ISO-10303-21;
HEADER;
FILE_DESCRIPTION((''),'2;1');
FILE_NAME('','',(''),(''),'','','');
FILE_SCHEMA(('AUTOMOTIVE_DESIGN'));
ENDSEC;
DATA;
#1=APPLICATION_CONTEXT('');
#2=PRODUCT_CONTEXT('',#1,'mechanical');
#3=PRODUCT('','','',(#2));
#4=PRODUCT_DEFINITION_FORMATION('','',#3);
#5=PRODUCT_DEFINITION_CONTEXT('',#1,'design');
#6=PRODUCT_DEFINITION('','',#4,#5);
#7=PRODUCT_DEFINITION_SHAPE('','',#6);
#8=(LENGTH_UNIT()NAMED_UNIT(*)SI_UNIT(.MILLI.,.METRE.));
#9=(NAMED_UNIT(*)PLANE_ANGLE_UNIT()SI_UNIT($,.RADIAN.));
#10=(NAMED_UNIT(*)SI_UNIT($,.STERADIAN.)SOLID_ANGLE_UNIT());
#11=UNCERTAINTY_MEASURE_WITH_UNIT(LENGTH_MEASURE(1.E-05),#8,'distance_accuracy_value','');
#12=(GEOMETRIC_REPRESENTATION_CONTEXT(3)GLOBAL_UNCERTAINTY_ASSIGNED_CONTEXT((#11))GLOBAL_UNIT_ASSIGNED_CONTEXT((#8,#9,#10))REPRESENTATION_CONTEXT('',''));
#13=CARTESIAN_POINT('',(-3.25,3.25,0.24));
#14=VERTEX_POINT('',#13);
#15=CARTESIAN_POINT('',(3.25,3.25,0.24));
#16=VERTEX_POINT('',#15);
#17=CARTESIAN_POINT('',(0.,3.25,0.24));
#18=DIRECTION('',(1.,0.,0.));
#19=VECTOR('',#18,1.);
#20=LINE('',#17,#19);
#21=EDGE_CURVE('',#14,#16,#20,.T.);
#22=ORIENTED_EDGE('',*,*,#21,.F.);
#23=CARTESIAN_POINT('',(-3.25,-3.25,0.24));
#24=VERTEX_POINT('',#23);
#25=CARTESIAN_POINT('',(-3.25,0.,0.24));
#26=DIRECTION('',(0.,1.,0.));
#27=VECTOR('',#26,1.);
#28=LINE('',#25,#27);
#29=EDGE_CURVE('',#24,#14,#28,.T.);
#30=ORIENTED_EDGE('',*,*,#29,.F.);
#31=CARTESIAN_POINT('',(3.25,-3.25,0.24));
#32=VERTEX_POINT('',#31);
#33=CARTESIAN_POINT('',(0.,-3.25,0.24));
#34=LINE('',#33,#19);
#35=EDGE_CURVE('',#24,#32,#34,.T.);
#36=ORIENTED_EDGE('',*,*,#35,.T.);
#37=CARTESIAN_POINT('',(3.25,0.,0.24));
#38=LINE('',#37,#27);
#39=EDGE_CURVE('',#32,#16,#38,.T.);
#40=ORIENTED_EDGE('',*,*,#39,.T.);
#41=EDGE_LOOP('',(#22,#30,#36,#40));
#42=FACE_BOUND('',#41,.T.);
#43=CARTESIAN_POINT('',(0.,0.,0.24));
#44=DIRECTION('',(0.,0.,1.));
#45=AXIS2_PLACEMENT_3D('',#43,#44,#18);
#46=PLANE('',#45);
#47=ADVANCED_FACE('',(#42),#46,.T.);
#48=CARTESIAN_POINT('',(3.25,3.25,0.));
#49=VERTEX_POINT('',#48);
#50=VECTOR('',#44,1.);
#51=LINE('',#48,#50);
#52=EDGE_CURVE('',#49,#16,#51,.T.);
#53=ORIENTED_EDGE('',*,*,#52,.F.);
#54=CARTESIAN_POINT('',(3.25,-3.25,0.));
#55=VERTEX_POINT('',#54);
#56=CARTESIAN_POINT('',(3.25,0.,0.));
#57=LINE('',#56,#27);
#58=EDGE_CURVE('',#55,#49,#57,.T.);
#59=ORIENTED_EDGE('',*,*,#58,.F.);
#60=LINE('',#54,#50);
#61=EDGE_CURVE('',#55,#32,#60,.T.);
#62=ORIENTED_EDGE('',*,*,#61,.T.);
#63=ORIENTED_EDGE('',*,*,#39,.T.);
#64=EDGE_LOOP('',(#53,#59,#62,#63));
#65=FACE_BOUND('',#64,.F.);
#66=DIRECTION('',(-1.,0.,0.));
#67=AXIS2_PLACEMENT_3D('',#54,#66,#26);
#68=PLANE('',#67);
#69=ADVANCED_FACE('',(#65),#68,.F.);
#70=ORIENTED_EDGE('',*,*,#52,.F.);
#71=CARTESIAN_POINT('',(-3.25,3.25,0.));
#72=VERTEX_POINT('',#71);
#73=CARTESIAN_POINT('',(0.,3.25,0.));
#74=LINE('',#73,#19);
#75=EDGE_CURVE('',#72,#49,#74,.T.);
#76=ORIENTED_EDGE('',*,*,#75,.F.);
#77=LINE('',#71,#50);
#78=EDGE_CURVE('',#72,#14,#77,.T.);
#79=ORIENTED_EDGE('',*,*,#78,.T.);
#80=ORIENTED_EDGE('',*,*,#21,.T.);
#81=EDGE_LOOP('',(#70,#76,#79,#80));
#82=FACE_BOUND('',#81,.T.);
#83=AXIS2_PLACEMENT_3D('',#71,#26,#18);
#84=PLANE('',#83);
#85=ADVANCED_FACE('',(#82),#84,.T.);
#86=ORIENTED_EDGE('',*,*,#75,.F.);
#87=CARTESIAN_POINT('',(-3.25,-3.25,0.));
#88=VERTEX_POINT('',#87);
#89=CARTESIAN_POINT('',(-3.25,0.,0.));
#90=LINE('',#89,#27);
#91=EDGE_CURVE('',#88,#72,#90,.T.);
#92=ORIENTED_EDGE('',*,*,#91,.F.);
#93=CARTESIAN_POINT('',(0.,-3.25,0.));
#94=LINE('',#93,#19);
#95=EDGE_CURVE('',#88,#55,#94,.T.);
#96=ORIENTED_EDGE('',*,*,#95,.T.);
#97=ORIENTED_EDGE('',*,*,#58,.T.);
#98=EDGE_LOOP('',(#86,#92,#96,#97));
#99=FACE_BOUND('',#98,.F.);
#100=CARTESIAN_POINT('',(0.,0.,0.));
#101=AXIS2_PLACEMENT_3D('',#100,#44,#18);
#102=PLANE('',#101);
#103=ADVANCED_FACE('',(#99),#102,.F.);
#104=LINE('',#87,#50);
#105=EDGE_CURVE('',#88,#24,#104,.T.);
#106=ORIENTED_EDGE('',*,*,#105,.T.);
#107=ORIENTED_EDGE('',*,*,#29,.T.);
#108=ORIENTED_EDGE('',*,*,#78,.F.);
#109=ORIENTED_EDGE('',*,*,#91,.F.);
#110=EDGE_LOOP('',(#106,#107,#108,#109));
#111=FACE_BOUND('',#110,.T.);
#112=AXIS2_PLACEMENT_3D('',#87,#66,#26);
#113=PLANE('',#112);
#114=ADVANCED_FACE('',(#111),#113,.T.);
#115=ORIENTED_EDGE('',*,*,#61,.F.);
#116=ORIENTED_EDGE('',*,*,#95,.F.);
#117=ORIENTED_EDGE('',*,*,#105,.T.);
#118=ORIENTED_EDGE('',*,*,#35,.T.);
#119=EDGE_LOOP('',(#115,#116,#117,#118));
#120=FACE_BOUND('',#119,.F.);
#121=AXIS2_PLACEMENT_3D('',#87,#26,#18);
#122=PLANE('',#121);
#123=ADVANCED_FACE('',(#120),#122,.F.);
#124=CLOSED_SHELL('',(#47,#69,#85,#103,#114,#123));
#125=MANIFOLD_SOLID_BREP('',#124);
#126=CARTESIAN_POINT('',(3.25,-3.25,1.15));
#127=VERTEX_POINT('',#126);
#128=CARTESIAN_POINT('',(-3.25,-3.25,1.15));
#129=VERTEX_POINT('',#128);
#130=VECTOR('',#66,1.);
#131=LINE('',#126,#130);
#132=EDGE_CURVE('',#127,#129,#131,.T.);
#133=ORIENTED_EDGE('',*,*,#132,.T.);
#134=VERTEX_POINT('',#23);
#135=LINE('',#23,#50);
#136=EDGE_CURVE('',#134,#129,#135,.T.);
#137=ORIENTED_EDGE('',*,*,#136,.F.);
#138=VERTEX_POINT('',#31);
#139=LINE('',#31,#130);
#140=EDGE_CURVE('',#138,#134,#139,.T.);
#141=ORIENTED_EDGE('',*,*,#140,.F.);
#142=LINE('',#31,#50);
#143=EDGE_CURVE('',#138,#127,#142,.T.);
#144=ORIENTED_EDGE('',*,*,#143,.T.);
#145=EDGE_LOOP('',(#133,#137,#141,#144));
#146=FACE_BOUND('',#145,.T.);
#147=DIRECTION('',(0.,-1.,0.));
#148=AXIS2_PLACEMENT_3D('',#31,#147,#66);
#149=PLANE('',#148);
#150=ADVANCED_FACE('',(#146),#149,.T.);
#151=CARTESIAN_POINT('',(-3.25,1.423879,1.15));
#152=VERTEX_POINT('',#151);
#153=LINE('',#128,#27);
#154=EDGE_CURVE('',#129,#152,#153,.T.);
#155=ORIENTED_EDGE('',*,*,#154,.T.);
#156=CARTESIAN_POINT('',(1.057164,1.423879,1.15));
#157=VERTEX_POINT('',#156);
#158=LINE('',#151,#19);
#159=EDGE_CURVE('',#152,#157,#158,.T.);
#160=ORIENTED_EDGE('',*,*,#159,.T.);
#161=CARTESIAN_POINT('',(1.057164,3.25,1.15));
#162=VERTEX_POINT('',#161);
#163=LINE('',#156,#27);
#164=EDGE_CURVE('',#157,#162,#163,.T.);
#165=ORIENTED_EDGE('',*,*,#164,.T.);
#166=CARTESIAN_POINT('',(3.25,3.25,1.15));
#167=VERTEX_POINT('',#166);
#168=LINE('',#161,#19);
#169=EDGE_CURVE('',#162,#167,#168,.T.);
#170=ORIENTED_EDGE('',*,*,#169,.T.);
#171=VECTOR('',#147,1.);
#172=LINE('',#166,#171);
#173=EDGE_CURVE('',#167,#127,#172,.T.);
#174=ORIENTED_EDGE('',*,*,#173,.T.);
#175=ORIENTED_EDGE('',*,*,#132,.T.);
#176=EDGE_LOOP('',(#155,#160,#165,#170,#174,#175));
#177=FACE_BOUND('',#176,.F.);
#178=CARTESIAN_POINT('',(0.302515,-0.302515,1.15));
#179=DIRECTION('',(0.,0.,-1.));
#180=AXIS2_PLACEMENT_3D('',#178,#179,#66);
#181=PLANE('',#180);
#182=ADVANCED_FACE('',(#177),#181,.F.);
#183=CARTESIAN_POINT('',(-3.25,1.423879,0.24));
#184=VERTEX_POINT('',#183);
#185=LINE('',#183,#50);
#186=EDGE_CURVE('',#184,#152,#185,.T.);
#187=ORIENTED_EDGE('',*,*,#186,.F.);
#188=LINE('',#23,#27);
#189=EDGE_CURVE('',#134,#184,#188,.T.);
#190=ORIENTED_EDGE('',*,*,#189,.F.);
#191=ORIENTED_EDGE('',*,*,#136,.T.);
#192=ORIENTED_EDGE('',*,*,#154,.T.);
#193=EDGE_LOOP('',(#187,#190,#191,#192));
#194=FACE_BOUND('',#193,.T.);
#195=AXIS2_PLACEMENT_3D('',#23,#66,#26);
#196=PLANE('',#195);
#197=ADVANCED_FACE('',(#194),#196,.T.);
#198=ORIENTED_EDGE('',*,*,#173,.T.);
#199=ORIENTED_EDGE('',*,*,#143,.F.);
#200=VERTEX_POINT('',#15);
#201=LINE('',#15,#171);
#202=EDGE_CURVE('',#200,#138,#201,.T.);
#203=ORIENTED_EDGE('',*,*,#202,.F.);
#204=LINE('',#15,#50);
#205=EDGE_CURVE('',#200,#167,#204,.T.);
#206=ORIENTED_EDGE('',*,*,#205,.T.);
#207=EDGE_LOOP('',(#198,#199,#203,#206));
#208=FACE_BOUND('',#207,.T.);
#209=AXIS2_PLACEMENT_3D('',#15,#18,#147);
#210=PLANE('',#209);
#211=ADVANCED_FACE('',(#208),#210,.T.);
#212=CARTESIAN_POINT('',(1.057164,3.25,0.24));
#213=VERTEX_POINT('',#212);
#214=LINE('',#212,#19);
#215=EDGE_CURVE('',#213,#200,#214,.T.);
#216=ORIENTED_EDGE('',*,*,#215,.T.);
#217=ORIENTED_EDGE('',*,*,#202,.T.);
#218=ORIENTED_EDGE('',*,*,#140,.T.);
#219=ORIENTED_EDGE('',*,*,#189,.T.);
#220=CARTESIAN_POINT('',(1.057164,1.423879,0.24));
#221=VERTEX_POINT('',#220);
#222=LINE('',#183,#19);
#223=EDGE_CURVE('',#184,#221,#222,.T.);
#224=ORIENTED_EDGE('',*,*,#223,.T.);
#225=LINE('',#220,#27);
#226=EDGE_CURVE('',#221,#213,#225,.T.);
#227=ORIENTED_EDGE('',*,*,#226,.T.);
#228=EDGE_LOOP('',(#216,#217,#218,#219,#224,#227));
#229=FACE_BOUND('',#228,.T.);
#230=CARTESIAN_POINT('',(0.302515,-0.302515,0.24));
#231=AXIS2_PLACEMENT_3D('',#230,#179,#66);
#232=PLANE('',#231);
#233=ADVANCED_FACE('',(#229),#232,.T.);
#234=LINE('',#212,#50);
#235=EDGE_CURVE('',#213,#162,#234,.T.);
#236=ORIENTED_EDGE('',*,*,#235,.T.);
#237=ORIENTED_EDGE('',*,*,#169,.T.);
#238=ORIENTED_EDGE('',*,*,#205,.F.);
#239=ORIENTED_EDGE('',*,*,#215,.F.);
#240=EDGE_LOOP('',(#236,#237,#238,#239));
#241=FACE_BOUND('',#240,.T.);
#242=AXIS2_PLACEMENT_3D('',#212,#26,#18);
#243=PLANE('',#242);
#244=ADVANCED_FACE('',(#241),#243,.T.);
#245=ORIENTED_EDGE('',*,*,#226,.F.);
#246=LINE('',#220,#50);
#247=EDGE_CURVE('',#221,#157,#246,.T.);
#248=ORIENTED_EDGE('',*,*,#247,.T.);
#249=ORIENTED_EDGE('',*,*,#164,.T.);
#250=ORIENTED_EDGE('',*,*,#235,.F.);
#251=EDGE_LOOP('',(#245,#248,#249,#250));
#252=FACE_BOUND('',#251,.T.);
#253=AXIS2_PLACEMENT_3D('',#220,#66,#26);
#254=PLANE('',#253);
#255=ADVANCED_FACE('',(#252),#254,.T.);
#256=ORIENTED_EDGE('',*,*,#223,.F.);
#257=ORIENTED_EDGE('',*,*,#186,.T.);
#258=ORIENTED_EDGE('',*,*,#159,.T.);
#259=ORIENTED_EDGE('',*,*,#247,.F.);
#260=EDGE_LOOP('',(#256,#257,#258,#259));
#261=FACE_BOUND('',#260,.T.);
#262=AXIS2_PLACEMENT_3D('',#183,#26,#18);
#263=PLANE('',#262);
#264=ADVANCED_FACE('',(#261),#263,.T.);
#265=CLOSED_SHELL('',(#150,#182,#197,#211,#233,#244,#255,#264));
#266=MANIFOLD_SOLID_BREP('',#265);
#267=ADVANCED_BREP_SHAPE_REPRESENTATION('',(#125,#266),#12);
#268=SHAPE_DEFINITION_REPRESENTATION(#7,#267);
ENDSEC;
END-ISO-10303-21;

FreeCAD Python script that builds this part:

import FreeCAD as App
import Part
import Sketcher

V = App.Vector

doc = App.newDocument("Part")
body = doc.addObject("PartDesign::Body", "Body")

# Sketch on XY plane
sketch1 = body.newObject("Sketcher::SketchObject", "Sketch")
sketch1.AttachmentSupport = (doc.getObject("XY_Plane"), [""])
sketch1.MapMode = "FlatFace"
sketch1.addGeometry(Part.LineSegment(V(-3.25, 3.25, 0), V(-3.25, -3.25, 0)), False)
sketch1.addGeometry(Part.LineSegment(V(-3.25, -3.25, 0), V(3.25, -3.25, 0)), False)
sketch1.addGeometry(Part.LineSegment(V(3.25, -3.25, 0), V(3.25, 3.25, 0)), False)
sketch1.addGeometry(Part.LineSegment(V(3.25, 3.25, 0), V(-3.25, 3.25, 0)), False)
sketch1.addConstraint(Sketcher.Constraint("Coincident", 0, 2, 1, 1))
sketch1.addConstraint(Sketcher.Constraint("Coincident", 1, 2, 2, 1))
sketch1.addConstraint(Sketcher.Constraint("Coincident", 2, 2, 3, 1))
sketch1.addConstraint(Sketcher.Constraint("Coincident", 3, 2, 0, 1))
sketch1.addConstraint(Sketcher.Constraint("Vertical", 0))
sketch1.addConstraint(Sketcher.Constraint("Horizontal", 1))
sketch1.addConstraint(Sketcher.Constraint("Vertical", 2))
sketch1.addConstraint(Sketcher.Constraint("Horizontal", 3))
sketch1.addConstraint(Sketcher.Constraint("Symmetric", 0, 2, 2, 2, -1, 1))
sketch1.addConstraint(Sketcher.Constraint("Equal", 3, 0))
sketch1.addConstraint(Sketcher.Constraint("DistanceX", 1, 1, 1, 2, 6.5))
pad1 = body.newObject("PartDesign::Pad", "Pad")
pad1.Profile = sketch1
pad1.Length = 0.24
body2 = doc.addObject("PartDesign::Body", "Body001")

# Sketch on XY plane
sketch2 = body2.newObject("Sketcher::SketchObject", "Sketch001")
sketch2.AttachmentSupport = (doc.getObject("XY_Plane001"), [""])
sketch2.MapMode = "FlatFace"
sketch2.AttachmentOffset = App.Placement(V(0, 0, 0.24), App.Rotation())
sketch2.addGeometry(Part.LineSegment(V(-3.25, 1.423879, 0), V(-3.25, -3.25, 0)), False)
sketch2.addGeometry(Part.LineSegment(V(-3.25, -3.25, 0), V(3.25, -3.25, 0)), False)
sketch2.addGeometry(Part.LineSegment(V(3.25, -3.25, 0), V(3.25, 3.25, 0)), False)
sketch2.addGeometry(Part.LineSegment(V(3.25, 3.25, 0), V(1.057164, 3.25, 0)), False)
sketch2.addGeometry(Part.LineSegment(V(1.057164, 3.25, 0), V(1.057164, 1.423879, 0)), False)
sketch2.addGeometry(Part.LineSegment(V(1.057164, 1.423879, 0), V(-3.25, 1.423879, 0)), False)
sketch2.addConstraint(Sketcher.Constraint("Coincident", 0, 2, 1, 1))
sketch2.addConstraint(Sketcher.Constraint("Coincident", 1, 2, 2, 1))
sketch2.addConstraint(Sketcher.Constraint("Coincident", 2, 2, 3, 1))
sketch2.addConstraint(Sketcher.Constraint("Coincident", 3, 2, 4, 1))
sketch2.addConstraint(Sketcher.Constraint("Coincident", 4, 2, 5, 1))
sketch2.addConstraint(Sketcher.Constraint("Coincident", 5, 2, 0, 1))
sketch2.addConstraint(Sketcher.Constraint("Vertical", 0))
sketch2.addConstraint(Sketcher.Constraint("Horizontal", 1))
sketch2.addConstraint(Sketcher.Constraint("Vertical", 2))
sketch2.addConstraint(Sketcher.Constraint("Horizontal", 3))
sketch2.addConstraint(Sketcher.Constraint("Vertical", 4))
sketch2.addConstraint(Sketcher.Constraint("Horizontal", 5))
sketch2.addConstraint(Sketcher.Constraint("Symmetric", 0, 2, 2, 2, -1, 1))
sketch2.addConstraint(Sketcher.Constraint("Equal", 1, 2))
sketch2.addConstraint(Sketcher.Constraint("DistanceX", 1, 1, 1, 2, 6.5))
sketch2.addConstraint(Sketcher.Constraint("DistanceY", 0, 2, 0, 1, 4.673879))
sketch2.addConstraint(Sketcher.Constraint("DistanceX", 3, 2, 3, 1, 2.192836))
pad2 = body2.newObject("PartDesign::Pad", "Pad001")
pad2.Profile = sketch2
pad2.Length = 0.91

doc.recompute()
